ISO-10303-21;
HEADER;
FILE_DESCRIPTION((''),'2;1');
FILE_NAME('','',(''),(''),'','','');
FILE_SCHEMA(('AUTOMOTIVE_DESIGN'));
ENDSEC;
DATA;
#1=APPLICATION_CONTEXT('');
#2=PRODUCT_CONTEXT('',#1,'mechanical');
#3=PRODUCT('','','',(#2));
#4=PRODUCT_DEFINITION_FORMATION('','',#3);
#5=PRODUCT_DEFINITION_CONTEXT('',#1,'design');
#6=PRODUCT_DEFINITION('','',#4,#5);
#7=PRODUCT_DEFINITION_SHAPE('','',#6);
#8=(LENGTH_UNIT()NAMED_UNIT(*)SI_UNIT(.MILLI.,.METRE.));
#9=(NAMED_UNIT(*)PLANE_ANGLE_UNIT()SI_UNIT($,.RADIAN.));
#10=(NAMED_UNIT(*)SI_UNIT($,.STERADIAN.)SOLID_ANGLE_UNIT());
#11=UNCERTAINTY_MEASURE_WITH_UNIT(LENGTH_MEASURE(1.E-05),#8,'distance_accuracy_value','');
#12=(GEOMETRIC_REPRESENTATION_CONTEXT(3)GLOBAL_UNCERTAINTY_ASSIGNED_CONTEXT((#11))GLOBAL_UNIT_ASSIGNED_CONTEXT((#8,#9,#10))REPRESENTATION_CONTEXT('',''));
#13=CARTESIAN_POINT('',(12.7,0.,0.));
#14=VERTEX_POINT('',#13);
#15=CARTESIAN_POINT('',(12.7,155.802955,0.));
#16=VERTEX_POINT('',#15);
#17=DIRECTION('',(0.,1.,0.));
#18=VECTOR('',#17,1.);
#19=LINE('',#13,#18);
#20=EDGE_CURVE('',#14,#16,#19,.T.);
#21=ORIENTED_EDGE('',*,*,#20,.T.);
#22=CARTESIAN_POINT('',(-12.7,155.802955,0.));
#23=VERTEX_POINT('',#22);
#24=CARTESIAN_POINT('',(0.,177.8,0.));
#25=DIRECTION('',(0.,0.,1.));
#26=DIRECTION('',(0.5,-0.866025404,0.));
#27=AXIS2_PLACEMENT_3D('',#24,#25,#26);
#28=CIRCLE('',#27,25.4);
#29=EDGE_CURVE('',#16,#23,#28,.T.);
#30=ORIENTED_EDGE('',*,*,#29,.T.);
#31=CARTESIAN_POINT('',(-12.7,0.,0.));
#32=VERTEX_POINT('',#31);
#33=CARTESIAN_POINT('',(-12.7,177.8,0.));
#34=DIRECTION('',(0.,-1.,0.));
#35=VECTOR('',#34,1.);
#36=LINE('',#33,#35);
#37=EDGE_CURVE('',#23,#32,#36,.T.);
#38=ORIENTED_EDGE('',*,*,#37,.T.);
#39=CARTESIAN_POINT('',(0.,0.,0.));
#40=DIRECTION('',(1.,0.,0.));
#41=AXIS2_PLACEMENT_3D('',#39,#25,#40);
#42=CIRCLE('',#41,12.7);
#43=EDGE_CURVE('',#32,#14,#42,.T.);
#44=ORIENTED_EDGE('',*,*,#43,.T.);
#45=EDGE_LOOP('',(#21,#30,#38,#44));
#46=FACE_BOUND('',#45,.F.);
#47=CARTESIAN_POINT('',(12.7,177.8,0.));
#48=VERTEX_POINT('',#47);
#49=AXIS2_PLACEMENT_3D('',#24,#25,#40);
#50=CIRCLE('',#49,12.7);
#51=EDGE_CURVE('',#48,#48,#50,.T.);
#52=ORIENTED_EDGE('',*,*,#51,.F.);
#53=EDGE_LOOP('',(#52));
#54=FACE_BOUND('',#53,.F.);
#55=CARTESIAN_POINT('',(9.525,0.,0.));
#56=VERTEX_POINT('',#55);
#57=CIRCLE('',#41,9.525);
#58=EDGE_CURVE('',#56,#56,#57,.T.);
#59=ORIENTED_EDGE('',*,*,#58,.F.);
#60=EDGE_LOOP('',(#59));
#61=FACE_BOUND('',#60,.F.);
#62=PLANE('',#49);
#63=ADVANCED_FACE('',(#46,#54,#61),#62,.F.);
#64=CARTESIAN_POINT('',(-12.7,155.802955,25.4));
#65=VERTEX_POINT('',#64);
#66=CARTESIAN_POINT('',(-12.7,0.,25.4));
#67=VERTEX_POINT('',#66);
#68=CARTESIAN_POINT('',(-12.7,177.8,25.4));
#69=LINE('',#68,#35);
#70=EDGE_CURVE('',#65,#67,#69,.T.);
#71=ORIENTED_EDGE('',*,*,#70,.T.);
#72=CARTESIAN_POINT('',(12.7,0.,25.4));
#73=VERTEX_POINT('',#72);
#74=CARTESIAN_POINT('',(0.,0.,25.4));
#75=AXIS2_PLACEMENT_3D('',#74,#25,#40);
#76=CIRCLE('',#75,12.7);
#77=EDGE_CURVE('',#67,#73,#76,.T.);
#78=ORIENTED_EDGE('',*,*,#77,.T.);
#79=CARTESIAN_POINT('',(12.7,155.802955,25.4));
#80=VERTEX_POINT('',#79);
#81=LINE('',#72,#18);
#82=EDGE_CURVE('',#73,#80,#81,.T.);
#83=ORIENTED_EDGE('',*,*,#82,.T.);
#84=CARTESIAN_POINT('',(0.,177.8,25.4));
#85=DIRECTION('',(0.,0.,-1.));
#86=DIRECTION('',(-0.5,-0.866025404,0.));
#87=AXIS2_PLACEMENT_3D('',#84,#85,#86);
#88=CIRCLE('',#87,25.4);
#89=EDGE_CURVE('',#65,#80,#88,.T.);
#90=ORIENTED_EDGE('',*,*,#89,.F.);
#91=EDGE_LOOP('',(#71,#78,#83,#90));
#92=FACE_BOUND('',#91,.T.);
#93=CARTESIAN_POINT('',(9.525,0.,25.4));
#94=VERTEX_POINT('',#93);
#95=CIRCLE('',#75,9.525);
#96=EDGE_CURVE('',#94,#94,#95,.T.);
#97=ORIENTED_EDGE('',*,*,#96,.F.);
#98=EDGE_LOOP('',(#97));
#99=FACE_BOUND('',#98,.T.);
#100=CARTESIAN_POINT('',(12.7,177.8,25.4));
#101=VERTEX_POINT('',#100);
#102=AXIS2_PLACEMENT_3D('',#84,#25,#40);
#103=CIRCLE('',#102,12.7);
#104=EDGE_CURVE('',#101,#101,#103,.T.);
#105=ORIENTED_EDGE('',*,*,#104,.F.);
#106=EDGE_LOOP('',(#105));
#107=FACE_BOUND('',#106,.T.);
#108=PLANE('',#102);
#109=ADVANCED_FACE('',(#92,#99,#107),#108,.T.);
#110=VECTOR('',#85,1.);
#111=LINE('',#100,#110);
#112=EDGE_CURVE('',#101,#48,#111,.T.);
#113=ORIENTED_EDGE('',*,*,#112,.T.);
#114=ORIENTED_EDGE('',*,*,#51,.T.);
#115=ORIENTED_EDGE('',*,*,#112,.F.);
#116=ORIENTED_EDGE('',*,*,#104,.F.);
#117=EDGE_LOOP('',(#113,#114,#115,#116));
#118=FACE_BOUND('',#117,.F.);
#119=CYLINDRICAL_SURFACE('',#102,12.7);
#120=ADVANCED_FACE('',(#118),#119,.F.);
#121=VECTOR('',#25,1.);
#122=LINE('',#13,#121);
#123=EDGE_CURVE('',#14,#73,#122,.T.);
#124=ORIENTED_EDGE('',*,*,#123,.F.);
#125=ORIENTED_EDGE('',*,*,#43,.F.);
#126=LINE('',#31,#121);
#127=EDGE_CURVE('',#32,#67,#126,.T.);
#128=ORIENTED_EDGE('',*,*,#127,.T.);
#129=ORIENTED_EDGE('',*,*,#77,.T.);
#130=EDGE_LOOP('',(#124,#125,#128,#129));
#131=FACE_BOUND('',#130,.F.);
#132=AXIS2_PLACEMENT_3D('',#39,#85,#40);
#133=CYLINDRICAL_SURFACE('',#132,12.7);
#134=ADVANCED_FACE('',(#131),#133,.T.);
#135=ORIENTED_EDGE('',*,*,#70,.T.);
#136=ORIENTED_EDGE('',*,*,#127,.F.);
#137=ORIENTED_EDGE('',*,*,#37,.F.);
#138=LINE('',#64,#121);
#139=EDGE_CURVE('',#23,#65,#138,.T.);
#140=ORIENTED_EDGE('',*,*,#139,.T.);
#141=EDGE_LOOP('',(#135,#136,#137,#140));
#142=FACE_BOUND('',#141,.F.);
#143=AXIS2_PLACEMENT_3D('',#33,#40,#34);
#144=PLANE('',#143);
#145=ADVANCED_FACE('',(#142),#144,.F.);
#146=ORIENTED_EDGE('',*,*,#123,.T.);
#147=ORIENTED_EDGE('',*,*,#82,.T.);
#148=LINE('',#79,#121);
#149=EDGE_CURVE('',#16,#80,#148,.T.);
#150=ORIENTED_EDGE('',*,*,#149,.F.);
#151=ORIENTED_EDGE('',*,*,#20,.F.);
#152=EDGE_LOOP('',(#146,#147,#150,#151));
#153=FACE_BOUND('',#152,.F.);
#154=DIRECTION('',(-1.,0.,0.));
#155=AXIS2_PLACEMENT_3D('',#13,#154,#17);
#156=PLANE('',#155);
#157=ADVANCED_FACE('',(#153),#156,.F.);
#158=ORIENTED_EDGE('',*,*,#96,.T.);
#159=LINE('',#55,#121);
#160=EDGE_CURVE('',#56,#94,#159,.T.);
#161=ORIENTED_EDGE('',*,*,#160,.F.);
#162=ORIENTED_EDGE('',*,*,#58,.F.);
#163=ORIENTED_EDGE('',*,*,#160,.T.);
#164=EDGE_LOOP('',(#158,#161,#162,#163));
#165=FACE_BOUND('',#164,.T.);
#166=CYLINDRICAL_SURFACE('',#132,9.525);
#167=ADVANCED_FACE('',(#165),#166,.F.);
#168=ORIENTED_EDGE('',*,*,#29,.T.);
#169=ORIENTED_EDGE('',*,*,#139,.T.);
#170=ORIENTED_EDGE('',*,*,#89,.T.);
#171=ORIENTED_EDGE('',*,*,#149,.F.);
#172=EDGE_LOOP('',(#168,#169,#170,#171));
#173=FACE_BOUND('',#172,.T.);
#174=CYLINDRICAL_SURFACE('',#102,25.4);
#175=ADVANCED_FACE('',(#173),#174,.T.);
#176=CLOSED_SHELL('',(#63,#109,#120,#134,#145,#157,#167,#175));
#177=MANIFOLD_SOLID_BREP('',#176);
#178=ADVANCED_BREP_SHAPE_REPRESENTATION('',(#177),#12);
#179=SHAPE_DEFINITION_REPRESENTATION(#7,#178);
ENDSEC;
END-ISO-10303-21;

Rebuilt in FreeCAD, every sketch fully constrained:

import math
import FreeCAD as App
import Part
import Sketcher

V = App.Vector
Q = App.Units.Quantity

doc = App.newDocument("Part")
params = doc.addObject("Spreadsheet::Sheet", "Params")
for row, (alias, value) in enumerate([
    ("sketch1_radius", "0.5 in"),
    ("sketch1_diameter", "0.75 in"),
    ("sketch1_height", "7 in"),
    ("pad1_length", "1 in"),
    ("sketch2_diameter", "2 in"),
    ("pad2_length", "1 in"),
    ("sketch3_diameter", "1 in"),
    ("pocket1_length", "1 in"),
], start=1):
    params.set(f"A{row}", alias)
    params.set(f"B{row}", "=" + value)
    params.setAlias(f"B{row}", alias)

body = doc.addObject("PartDesign::Body", "Body")

# Sketch on XY plane
sketch1 = doc.addObject("Sketcher::SketchObject", "Sketch")
body.addObject(sketch1)
sketch1.AttachmentSupport = (doc.XY_Plane, [""])
sketch1.MapMode = "FlatFace"
sketch1.addGeometry([
    Part.ArcOfCircle(Part.Circle(V(0, 0, 0), V(0, 0, 1), 13), math.radians(180), math.radians(360)),  # 0
    Part.LineSegment(V(13, 0, 0), V(13, 178, 0)),  # 1
    Part.LineSegment(V(13, 178, 0), V(-13, 178, 0)),  # 2
    Part.LineSegment(V(-13, 178, 0), V(-13, 0, 0)),  # 3
    Part.Circle(V(0, 0, 0), V(0, 0, 1), 10),  # 4
], False)
sketch1.addConstraint([
    Sketcher.Constraint("Tangent", 0, 2, 1, 1),
    Sketcher.Constraint("Coincident", 1, 2, 2, 1),
    Sketcher.Constraint("Coincident", 2, 2, 3, 1),
    Sketcher.Constraint("Tangent", 3, 2, 0, 1),
    Sketcher.Constraint("Vertical", 1),
    Sketcher.Constraint("Horizontal", 2),
    Sketcher.Constraint("Vertical", 3),
    Sketcher.Constraint("Coincident", 0, 3, -1, 1),
    Sketcher.Constraint("Coincident", 4, 3, -1, 1),
    Sketcher.Constraint("Radius", 0, Q("0.5 in")),
    Sketcher.Constraint("Diameter", 4, Q("0.75 in")),
    Sketcher.Constraint("DistanceY", 1, 1, 1, 2, Q("7 in")),
])
sketch1.setExpression("Constraints[9]", "Params.sketch1_radius")
sketch1.setExpression("Constraints[10]", "Params.sketch1_diameter")
sketch1.setExpression("Constraints[11]", "Params.sketch1_height")
pad1 = doc.addObject("PartDesign::Pad", "Pad")
body.addObject(pad1)
pad1.Profile = sketch1
pad1.setExpression("Length", "Params.pad1_length")

# Sketch on XY plane
sketch2 = doc.addObject("Sketcher::SketchObject", "Sketch001")
body.addObject(sketch2)
sketch2.AttachmentSupport = (doc.XY_Plane, [""])
sketch2.MapMode = "FlatFace"
sketch2.AttachmentOffset = App.Placement(V(0, 0, 1 * 25.4), App.Rotation())
sketch2.addGeometry(Part.Circle(V(0, 178, 0), V(0, 0, 1), 25), False)
sketch2.addConstraint([
    Sketcher.Constraint("PointOnObject", 0, 3, -2),
    Sketcher.Constraint("Diameter", 0, Q("2 in")),
    Sketcher.Constraint("DistanceY", -1, 1, 0, 3, Q("7 in")),
])
sketch2.setExpression("Constraints[1]", "Params.sketch2_diameter")
pad2 = doc.addObject("PartDesign::Pad", "Pad001")
body.addObject(pad2)
pad2.Profile = sketch2
pad2.setExpression("Length", "Params.pad2_length")
pad2.Reversed = True

# Sketch on XY plane
sketch3 = doc.addObject("Sketcher::SketchObject", "Sketch002")
body.addObject(sketch3)
sketch3.AttachmentSupport = (doc.XY_Plane, [""])
sketch3.MapMode = "FlatFace"
sketch3.AttachmentOffset = App.Placement(V(0, 0, 1 * 25.4), App.Rotation())
sketch3.addGeometry(Part.Circle(V(0, 178, 0), V(0, 0, 1), 13), False)
sketch3.addConstraint([
    Sketcher.Constraint("PointOnObject", 0, 3, -2),
    Sketcher.Constraint("Diameter", 0, Q("1 in")),
    Sketcher.Constraint("DistanceY", -1, 1, 0, 3, Q("7 in")),
])
sketch3.setExpression("Constraints[1]", "Params.sketch3_diameter")
pocket1 = doc.addObject("PartDesign::Pocket", "Pocket")
body.addObject(pocket1)
pocket1.Profile = sketch3
pocket1.setExpression("Length", "Params.pocket1_length")

doc.recompute()
